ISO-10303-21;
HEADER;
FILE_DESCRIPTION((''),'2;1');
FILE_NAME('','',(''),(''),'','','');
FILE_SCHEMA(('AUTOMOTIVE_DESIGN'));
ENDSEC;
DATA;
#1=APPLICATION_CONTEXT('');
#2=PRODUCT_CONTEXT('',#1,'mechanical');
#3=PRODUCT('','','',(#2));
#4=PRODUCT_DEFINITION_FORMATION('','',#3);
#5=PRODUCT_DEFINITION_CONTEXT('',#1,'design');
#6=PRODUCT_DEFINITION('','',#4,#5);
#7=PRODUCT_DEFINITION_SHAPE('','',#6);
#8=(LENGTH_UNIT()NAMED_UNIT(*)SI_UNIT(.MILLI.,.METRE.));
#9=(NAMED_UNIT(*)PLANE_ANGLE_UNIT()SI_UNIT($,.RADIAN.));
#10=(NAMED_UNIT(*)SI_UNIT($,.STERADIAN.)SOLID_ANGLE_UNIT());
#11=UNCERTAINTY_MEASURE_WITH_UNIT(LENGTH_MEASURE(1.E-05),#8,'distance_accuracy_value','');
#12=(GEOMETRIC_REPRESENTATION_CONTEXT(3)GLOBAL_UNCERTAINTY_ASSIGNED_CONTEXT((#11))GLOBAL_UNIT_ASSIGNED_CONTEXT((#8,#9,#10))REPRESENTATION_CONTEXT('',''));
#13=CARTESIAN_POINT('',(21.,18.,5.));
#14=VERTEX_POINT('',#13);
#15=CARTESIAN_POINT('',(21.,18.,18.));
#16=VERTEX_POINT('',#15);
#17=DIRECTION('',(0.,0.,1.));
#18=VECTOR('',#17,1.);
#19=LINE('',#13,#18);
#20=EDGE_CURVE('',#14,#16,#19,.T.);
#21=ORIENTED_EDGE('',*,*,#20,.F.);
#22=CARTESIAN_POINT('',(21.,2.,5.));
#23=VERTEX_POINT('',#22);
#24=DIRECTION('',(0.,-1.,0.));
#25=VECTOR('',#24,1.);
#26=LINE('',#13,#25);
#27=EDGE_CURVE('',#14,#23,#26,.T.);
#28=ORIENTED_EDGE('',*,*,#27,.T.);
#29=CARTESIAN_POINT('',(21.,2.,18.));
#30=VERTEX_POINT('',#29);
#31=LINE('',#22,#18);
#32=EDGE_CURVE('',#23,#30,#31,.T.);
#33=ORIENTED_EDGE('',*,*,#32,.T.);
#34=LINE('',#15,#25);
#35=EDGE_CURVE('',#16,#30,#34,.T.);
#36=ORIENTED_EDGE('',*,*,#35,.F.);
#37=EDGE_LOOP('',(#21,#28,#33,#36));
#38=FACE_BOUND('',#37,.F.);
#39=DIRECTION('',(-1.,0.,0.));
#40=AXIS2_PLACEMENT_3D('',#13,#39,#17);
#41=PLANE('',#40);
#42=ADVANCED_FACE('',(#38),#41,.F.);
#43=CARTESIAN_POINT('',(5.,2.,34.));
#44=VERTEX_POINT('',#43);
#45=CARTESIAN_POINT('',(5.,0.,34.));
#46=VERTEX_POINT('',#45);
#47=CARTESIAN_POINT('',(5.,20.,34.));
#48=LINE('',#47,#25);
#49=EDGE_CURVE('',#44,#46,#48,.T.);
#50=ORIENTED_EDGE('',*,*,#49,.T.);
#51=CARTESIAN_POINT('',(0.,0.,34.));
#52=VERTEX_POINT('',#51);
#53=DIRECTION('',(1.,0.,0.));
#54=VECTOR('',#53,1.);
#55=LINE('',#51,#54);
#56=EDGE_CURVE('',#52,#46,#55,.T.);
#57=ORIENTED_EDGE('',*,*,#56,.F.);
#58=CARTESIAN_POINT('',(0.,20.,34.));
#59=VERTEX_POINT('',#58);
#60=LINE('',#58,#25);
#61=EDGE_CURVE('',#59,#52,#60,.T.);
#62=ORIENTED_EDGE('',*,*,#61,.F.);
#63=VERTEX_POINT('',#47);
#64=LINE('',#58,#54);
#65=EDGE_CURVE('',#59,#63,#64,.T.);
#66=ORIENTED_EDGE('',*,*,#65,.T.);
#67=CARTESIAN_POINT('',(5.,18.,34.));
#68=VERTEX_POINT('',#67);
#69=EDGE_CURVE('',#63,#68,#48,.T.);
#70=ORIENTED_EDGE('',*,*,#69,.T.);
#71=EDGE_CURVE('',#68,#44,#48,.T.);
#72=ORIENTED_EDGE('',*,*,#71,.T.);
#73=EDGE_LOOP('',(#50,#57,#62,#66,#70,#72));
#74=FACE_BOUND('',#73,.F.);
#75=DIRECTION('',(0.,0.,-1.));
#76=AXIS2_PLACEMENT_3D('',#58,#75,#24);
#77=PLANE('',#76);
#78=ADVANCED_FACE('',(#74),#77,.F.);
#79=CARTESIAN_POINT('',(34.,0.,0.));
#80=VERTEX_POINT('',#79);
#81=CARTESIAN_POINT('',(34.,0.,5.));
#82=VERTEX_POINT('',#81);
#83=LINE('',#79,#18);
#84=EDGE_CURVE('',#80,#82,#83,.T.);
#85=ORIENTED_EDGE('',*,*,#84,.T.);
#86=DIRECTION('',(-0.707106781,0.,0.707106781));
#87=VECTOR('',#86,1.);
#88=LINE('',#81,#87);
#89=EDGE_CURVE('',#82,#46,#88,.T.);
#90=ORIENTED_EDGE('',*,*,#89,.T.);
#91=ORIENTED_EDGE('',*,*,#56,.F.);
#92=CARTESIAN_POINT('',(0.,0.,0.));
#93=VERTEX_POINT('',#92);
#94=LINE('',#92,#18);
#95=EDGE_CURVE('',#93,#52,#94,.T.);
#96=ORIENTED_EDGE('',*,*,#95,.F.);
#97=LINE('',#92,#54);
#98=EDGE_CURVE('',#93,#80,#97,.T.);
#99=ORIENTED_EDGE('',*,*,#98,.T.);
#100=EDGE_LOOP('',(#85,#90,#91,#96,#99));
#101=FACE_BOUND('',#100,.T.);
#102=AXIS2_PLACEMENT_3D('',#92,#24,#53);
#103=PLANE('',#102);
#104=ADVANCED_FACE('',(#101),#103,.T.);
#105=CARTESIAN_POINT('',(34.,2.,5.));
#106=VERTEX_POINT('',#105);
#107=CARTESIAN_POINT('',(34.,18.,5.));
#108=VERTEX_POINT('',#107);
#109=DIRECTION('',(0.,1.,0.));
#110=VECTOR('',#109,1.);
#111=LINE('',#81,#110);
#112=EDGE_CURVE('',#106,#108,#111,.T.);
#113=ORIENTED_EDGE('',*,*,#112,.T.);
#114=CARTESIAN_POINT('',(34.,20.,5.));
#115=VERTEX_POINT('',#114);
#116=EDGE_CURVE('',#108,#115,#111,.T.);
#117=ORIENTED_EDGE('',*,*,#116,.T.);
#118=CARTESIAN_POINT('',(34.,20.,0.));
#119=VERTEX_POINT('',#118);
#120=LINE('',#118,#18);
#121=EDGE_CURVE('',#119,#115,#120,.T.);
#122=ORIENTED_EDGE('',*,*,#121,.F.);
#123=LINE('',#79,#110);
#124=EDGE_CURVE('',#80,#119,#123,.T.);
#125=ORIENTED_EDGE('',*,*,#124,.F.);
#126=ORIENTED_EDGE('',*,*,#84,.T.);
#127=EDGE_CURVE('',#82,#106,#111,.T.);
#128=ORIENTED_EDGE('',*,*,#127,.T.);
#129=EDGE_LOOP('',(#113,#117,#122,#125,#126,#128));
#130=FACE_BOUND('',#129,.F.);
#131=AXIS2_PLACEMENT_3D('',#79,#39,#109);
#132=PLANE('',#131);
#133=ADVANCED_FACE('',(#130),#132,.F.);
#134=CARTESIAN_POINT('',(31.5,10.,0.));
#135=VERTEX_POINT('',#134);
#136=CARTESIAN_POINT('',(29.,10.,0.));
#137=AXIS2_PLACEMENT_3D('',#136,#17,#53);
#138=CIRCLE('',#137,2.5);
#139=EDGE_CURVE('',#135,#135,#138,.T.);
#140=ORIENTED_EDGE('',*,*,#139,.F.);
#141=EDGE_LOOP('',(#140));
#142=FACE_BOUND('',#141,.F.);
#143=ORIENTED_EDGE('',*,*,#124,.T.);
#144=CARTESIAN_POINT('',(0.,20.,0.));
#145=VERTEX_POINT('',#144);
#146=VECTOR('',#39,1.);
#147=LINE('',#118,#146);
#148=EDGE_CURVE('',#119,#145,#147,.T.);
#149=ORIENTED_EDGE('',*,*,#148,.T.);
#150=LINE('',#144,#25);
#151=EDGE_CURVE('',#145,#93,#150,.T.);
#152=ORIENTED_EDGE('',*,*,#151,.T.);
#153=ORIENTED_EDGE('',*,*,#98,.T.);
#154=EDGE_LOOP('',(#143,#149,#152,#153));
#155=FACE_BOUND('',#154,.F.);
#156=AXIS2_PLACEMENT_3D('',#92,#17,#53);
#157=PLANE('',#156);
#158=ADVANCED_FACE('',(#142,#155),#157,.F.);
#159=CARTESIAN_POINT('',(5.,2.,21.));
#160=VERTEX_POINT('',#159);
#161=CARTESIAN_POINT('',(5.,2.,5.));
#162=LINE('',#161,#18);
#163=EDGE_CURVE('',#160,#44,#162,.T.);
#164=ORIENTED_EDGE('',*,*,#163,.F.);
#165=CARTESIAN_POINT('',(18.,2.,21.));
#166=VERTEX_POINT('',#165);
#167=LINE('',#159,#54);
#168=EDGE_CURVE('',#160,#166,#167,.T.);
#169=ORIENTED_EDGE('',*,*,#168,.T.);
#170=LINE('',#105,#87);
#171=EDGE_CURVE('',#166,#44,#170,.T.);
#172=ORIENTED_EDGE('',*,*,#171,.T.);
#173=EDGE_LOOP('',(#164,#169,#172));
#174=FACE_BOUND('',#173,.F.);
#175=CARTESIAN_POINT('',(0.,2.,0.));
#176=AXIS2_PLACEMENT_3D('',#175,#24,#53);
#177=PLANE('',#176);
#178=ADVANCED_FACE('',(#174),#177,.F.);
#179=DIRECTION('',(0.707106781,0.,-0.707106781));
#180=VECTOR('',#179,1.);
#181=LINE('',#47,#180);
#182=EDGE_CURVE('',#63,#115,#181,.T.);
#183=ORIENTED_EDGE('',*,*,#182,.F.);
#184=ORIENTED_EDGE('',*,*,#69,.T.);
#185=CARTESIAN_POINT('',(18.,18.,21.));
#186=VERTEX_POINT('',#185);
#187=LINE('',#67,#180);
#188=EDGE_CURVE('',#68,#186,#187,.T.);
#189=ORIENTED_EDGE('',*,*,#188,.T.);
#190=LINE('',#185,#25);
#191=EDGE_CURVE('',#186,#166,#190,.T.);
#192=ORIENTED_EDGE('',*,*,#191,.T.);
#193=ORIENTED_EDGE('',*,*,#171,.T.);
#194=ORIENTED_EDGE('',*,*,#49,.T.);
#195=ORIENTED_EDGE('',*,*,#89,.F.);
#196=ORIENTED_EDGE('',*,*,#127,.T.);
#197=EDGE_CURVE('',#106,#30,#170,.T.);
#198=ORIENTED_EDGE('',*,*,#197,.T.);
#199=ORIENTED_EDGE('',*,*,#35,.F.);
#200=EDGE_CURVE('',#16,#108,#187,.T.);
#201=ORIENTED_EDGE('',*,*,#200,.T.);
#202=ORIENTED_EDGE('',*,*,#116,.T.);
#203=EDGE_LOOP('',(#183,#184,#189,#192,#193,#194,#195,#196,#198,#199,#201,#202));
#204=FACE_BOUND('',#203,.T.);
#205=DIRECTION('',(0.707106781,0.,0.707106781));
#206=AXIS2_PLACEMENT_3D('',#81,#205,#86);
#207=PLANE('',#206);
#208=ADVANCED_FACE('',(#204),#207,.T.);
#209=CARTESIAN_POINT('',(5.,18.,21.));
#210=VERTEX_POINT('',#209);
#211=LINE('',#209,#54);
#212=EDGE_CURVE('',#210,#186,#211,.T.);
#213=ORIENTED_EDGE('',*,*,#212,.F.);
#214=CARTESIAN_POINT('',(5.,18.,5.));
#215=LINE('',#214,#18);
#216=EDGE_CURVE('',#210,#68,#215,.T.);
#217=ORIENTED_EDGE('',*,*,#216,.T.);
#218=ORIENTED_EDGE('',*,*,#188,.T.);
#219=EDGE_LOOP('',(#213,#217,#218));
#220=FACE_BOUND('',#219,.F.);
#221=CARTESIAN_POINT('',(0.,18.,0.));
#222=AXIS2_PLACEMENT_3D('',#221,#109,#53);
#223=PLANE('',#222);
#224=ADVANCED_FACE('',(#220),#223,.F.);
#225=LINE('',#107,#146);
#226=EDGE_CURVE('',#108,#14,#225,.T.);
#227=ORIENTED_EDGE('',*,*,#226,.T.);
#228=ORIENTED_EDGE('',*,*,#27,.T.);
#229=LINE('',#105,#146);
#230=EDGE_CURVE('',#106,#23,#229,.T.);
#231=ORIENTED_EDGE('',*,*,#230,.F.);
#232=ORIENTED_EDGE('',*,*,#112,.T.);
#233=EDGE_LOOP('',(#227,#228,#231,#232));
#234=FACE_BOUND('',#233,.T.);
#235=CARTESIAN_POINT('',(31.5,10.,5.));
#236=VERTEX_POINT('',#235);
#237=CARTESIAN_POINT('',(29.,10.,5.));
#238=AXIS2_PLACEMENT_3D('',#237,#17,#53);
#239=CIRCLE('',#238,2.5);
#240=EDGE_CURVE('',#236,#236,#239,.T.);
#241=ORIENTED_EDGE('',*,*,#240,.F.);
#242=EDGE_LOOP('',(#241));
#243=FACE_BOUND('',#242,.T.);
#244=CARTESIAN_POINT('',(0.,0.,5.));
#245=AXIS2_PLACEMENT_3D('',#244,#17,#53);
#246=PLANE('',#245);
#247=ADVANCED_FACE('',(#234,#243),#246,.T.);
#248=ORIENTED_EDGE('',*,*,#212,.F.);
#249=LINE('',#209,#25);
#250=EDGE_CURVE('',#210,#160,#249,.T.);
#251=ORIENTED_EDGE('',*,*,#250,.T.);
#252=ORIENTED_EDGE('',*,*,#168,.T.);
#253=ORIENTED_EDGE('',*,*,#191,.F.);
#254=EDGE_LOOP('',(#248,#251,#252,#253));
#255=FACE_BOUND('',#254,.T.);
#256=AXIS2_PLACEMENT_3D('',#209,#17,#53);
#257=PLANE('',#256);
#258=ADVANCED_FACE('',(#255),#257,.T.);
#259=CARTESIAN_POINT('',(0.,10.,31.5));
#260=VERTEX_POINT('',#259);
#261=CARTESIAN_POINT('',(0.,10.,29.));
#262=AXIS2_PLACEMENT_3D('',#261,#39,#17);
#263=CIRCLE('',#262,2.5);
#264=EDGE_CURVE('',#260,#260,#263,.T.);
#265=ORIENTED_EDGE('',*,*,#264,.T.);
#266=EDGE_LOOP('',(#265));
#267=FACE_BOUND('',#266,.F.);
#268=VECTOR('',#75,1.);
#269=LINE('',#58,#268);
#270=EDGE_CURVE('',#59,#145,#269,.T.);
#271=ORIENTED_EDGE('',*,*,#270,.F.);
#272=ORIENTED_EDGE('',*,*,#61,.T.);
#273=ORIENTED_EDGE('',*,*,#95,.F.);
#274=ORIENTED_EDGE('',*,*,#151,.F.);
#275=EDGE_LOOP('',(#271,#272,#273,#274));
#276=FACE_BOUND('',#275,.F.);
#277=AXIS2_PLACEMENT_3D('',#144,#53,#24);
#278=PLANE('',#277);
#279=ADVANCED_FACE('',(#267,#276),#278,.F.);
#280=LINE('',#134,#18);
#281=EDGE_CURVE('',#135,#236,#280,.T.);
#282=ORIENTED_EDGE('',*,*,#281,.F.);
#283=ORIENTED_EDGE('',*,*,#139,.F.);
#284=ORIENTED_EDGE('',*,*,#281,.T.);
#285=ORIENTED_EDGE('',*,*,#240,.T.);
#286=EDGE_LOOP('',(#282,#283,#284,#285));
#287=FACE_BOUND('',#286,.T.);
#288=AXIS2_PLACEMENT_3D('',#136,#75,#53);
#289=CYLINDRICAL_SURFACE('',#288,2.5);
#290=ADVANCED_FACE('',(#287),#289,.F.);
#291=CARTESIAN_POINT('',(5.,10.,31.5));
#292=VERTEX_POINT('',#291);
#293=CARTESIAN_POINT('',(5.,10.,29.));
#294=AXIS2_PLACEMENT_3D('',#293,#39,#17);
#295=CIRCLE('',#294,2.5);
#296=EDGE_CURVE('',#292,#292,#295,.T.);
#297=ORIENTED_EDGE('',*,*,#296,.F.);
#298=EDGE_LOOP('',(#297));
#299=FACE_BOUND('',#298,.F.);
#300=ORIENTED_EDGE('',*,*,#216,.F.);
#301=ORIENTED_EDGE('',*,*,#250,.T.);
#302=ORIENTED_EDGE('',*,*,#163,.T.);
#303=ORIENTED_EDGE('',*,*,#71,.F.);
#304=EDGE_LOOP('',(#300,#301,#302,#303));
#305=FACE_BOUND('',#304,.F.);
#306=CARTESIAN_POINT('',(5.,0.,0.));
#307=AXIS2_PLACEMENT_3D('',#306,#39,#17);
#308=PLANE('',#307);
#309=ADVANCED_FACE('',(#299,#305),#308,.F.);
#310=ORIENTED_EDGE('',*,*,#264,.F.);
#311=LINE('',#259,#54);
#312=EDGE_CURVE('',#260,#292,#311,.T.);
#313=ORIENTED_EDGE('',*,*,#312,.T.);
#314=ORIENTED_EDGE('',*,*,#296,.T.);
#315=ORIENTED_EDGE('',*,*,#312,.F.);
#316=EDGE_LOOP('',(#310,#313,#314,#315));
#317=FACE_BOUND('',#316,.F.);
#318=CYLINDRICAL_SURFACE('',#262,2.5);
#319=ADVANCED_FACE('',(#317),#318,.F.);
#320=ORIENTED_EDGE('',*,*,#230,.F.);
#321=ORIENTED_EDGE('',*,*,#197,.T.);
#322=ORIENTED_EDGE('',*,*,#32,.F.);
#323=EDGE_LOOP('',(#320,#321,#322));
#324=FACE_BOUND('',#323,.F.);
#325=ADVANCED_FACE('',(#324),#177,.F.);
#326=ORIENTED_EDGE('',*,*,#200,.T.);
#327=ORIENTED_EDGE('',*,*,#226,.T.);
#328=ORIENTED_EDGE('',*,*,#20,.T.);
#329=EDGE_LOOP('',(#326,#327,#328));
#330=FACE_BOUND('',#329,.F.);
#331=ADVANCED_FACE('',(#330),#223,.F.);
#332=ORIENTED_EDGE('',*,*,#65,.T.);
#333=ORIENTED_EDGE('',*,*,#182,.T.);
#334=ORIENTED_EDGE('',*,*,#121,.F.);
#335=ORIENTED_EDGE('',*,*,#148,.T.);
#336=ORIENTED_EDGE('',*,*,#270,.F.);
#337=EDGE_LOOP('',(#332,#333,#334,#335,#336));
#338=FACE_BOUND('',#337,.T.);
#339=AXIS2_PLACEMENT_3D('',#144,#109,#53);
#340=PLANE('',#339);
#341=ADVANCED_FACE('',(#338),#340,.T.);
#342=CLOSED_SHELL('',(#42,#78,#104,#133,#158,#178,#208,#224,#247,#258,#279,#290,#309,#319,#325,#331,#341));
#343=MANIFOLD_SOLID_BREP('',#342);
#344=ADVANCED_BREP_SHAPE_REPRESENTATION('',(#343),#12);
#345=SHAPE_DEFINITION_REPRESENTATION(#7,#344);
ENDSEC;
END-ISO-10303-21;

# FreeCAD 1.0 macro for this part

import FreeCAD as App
import Part
import Sketcher

V = App.Vector

doc = App.newDocument("Part")
body = doc.addObject("PartDesign::Body", "Body")

sketch1 = body.newObject("Sketcher::SketchObject", "Sketch")
sketch1.AttachmentSupport = (doc.getObject("XY_Plane"), [""])
sketch1.MapMode = "FlatFace"
sketch1.addGeometry([
    Part.LineSegment(V(0, 20, 0), V(0, 0, 0)),
    Part.LineSegment(V(0, 0, 0), V(34, 0, 0)),
    Part.LineSegment(V(34, 0, 0), V(34, 20, 0)),
    Part.LineSegment(V(34, 20, 0), V(0, 20, 0)),
    Part.Circle(V(29, 10, 0), V(0, 0, 1), 2.5),
], False)
sketch1.addConstraint([
    Sketcher.Constraint("Coincident", 0, 2, 1, 1),
    Sketcher.Constraint("Coincident", 1, 2, 2, 1),
    Sketcher.Constraint("Coincident", 2, 2, 3, 1),
    Sketcher.Constraint("Coincident", 3, 2, 0, 1),
    Sketcher.Constraint("Vertical", 0),
    Sketcher.Constraint("Horizontal", 1),
    Sketcher.Constraint("Vertical", 2),
    Sketcher.Constraint("Horizontal", 3),
    Sketcher.Constraint("Coincident", 0, 2, -1, 1),
    Sketcher.Constraint("Diameter", 4, 5.0),
    Sketcher.Constraint("DistanceX", 1, 1, 1, 2, 34.0),
    Sketcher.Constraint("DistanceY", 0, 2, 0, 1, 20.0),
    Sketcher.Constraint("DistanceX", 4, 3, 1, 2, 5.0),
    Sketcher.Constraint("DistanceY", -1, 1, 4, 3, 10.0),
])
pad1 = body.newObject("PartDesign::Pad", "Pad")
pad1.Profile = sketch1
pad1.Length = 5

sketch2 = body.newObject("Sketcher::SketchObject", "Sketch001")
sketch2.AttachmentSupport = (doc.getObject("YZ_Plane"), [""])
sketch2.MapMode = "FlatFace"
sketch2.addGeometry([
    Part.LineSegment(V(20, 0, 0), V(0, 0, 0)),
    Part.LineSegment(V(0, 0, 0), V(0, 34, 0)),
    Part.LineSegment(V(0, 34, 0), V(20, 34, 0)),
    Part.LineSegment(V(20, 34, 0), V(20, 0, 0)),
    Part.Circle(V(10, 29, 0), V(0, 0, 1), 2.5),
], False)
sketch2.addConstraint([
    Sketcher.Constraint("Coincident", 0, 2, 1, 1),
    Sketcher.Constraint("Coincident", 1, 2, 2, 1),
    Sketcher.Constraint("Coincident", 2, 2, 3, 1),
    Sketcher.Constraint("Coincident", 3, 2, 0, 1),
    Sketcher.Constraint("Horizontal", 0),
    Sketcher.Constraint("Vertical", 1),
    Sketcher.Constraint("Horizontal", 2),
    Sketcher.Constraint("Vertical", 3),
    Sketcher.Constraint("Coincident", 0, 2, -1, 1),
    Sketcher.Constraint("Diameter", 4, 5.0),
    Sketcher.Constraint("DistanceY", 1, 1, 1, 2, 34.0),
    Sketcher.Constraint("DistanceY", 4, 3, 1, 2, 5.0),
    Sketcher.Constraint("DistanceX", 0, 2, 0, 1, 20.0),
    Sketcher.Constraint("DistanceX", -1, 1, 4, 3, 10.0),
])
pad2 = body.newObject("PartDesign::Pad", "Pad001")
pad2.Profile = sketch2
pad2.Length = 5

sketch3 = body.newObject("Sketcher::SketchObject", "Sketch002")
sketch3.AttachmentSupport = (doc.getObject("XZ_Plane"), [""])
sketch3.MapMode = "FlatFace"
sketch3.AttachmentOffset = App.Placement(V(0, 0, -20), App.Rotation())
sketch3.addGeometry([
    Part.LineSegment(V(5, 34, 0), V(34, 5, 0)),
    Part.LineSegment(V(34, 5, 0), V(5, 5, 0)),
    Part.LineSegment(V(5, 5, 0), V(5, 34, 0)),
], False)
sketch3.addConstraint([
    Sketcher.Constraint("Coincident", 0, 2, 1, 1),
    Sketcher.Constraint("Coincident", 1, 2, 2, 1),
    Sketcher.Constraint("Coincident", 2, 2, 0, 1),
    Sketcher.Constraint("Horizontal", 1),
    Sketcher.Constraint("Vertical", 2),
    Sketcher.Constraint("Equal", 1, 2),
    Sketcher.Constraint("DistanceX", 1, 2, 1, 1, 29.0),
    Sketcher.Constraint("DistanceX", -1, 1, 0, 2, 34.0),
    Sketcher.Constraint("DistanceY", -1, 1, 0, 2, 5.0),
])
pad3 = body.newObject("PartDesign::Pad", "Pad002")
pad3.Profile = sketch3
pad3.Length = 2

sketch4 = body.newObject("Sketcher::SketchObject", "Sketch003")
sketch4.AttachmentSupport = (doc.getObject("XZ_Plane"), [""])
sketch4.MapMode = "FlatFace"
sketch4.addGeometry([
    Part.LineSegment(V(5, 5, 0), V(34, 5, 0)),
    Part.LineSegment(V(34, 5, 0), V(5, 34, 0)),
    Part.LineSegment(V(5, 34, 0), V(5, 5, 0)),
], False)
sketch4.addConstraint([
    Sketcher.Constraint("Coincident", 0, 2, 1, 1),
    Sketcher.Constraint("Coincident", 1, 2, 2, 1),
    Sketcher.Constraint("Coincident", 2, 2, 0, 1),
    Sketcher.Constraint("Horizontal", 0),
    Sketcher.Constraint("Vertical", 2),
    Sketcher.Constraint("Equal", 0, 2),
    Sketcher.Constraint("DistanceX", 0, 1, 0, 2, 29.0),
    Sketcher.Constraint("DistanceX", -1, 1, 0, 2, 34.0),
    Sketcher.Constraint("DistanceY", -1, 1, 0, 2, 5.0),
])
pad4 = body.newObject("PartDesign::Pad", "Pad003")
pad4.Profile = sketch4
pad4.Length = 2
pad4.Reversed = True

sketch5 = body.newObject("Sketcher::SketchObject", "Sketch004")
sketch5.AttachmentSupport = (doc.getObject("XZ_Plane"), [""])
sketch5.MapMode = "FlatFace"
sketch5.AttachmentOffset = App.Placement(V(0, 0, -18), App.Rotation())
sketch5.addGeometry([
    Part.LineSegment(V(5, 5, 0), V(21, 5, 0)),
    Part.LineSegment(V(21, 5, 0), V(21, 18, 0)),
    Part.LineSegment(V(21, 18, 0), V(18, 21, 0)),
    Part.LineSegment(V(18, 21, 0), V(5, 21, 0)),
    Part.LineSegment(V(5, 21, 0), V(5, 5, 0)),
], False)
sketch5.addConstraint([
    Sketcher.Constraint("Coincident", 0, 2, 1, 1),
    Sketcher.Constraint("Coincident", 1, 2, 2, 1),
    Sketcher.Constraint("Coincident", 2, 2, 3, 1),
    Sketcher.Constraint("Coincident", 3, 2, 4, 1),
    Sketcher.Constraint("Coincident", 4, 2, 0, 1),
    Sketcher.Constraint("Horizontal", 0),
    Sketcher.Constraint("Vertical", 1),
    Sketcher.Constraint("Horizontal", 3),
    Sketcher.Constraint("Vertical", 4),
    Sketcher.Constraint("Equal", 3, 1),
    Sketcher.Constraint("Equal", 0, 4),
    Sketcher.Constraint("DistanceX", 0, 1, 0, 2, 16.0),
    Sketcher.Constraint("DistanceX", 3, 2, 3, 1, 13.0),
    Sketcher.Constraint("DistanceX", -1, 1, 0, 2, 21.0),
    Sketcher.Constraint("DistanceY", -1, 1, 0, 2, 5.0),
])
pad5 = body.newObject("PartDesign::Pad", "Pad004")
pad5.Profile = sketch5
pad5.Length = 16

doc.recompute()
